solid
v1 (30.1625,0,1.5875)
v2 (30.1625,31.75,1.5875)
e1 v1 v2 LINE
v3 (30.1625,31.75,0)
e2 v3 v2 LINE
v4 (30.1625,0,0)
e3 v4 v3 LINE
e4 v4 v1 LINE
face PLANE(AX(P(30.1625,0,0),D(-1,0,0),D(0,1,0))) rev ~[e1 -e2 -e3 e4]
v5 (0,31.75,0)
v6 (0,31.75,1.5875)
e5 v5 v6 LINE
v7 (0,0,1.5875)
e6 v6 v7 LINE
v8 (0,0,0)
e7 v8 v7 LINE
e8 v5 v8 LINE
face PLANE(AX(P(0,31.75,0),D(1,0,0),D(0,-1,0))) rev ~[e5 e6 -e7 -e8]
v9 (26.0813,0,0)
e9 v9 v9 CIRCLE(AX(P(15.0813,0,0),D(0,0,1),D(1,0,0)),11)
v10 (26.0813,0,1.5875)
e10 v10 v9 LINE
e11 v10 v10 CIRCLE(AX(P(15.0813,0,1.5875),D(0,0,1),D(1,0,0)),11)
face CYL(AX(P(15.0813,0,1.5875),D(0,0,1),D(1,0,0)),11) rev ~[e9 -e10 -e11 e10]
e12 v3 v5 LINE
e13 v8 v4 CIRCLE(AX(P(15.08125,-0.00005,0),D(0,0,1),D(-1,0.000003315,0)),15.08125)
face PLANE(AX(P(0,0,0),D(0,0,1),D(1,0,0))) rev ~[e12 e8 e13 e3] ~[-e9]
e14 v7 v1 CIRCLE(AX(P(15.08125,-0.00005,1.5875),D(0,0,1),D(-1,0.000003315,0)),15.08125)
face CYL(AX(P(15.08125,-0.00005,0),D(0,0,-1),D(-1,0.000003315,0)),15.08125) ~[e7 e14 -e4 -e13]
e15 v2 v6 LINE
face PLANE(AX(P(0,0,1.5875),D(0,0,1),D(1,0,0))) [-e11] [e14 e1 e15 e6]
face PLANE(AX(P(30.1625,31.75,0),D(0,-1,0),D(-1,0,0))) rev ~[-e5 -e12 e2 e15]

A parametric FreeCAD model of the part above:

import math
import FreeCAD as App
import Part
import Sketcher
from FreeCAD import Vector
Q = App.Units.Quantity

doc = App.newDocument("Part")
params = doc.addObject("Spreadsheet::Sheet", "Params")
for row, (alias, value) in enumerate([
    ("sketch1_radius", "0.593752 in"),
    ("sketch1_height", "1.25 in"),
    ("pad1_length", "0.0625 in"),
], start=1):
    params.set(f"A{row}", alias)
    params.set(f"B{row}", "=" + value)
    params.setAlias(f"B{row}", alias)

body = doc.addObject("PartDesign::Body", "Body")

sketch1 = body.newObject("Sketcher::SketchObject", "Sketch")
sketch1.AttachmentSupport = (doc.getObject("XY_Plane"), [""])
sketch1.MapMode = "FlatFace"
sketch1.addGeometry(Part.ArcOfCircle(Part.Circle(Vector(15, 0, 0), Vector(0, 0, 1), 15), math.radians(180), math.radians(360)), False)
sketch1.addGeometry(Part.LineSegment(Vector(30, 0, 0), Vector(30, 32, 0)), False)
sketch1.addGeometry(Part.LineSegment(Vector(30, 32, 0), Vector(0, 32, 0)), False)
sketch1.addGeometry(Part.LineSegment(Vector(0, 32, 0), Vector(0, 0, 0)), False)
sketch1.addConstraint(Sketcher.Constraint("Tangent", 0, 2, 1, 1))
sketch1.addConstraint(Sketcher.Constraint("Coincident", 1, 2, 2, 1))
sketch1.addConstraint(Sketcher.Constraint("Coincident", 2, 2, 3, 1))
sketch1.addConstraint(Sketcher.Constraint("Tangent", 3, 2, 0, 1))
sketch1.addConstraint(Sketcher.Constraint("Vertical", 1))
sketch1.addConstraint(Sketcher.Constraint("Horizontal", 2))
sketch1.addConstraint(Sketcher.Constraint("Vertical", 3))
sketch1.addConstraint(Sketcher.Constraint("Coincident", 3, 2, -1, 1))
sketch1.addConstraint(Sketcher.Constraint("Radius", 0, Q("0.593752 in")))
sketch1.addConstraint(Sketcher.Constraint("DistanceY", 1, 1, 1, 2, Q("1.25 in")))
sketch1.setExpression("Constraints[8]", "Params.sketch1_radius")
sketch1.setExpression("Constraints[9]", "Params.sketch1_height")
pad1 = body.newObject("PartDesign::Pad", "Pad")
pad1.Profile = sketch1
pad1.setExpression("Length", "Params.pad1_length")

sketch2 = body.newObject("Sketcher::SketchObject", "Sketch001")
sketch2.AttachmentSupport = (doc.getObject("XY_Plane"), [""])
sketch2.MapMode = "FlatFace"
sketch2.AttachmentOffset = App.Placement(Vector(0, 0, 0.0625 * 25.4), App.Rotation())
sketch2.addGeometry(Part.Circle(Vector(15, 0, 0), Vector(0, 0, 1), 11), False)
sketch2.addConstraint(Sketcher.Constraint("PointOnObject", 0, 3, -1))
sketch2.addConstraint(Sketcher.Constraint("Diameter", 0, Q("22 mm")))
sketch2.addConstraint(Sketcher.Constraint("DistanceX", -1, 1, 0, 3, Q("0.593752 in")))
pocket1 = body.newObject("PartDesign::Pocket", "Pocket")
pocket1.Profile = sketch2
pocket1.Type = "ThroughAll"

doc.recompute()
